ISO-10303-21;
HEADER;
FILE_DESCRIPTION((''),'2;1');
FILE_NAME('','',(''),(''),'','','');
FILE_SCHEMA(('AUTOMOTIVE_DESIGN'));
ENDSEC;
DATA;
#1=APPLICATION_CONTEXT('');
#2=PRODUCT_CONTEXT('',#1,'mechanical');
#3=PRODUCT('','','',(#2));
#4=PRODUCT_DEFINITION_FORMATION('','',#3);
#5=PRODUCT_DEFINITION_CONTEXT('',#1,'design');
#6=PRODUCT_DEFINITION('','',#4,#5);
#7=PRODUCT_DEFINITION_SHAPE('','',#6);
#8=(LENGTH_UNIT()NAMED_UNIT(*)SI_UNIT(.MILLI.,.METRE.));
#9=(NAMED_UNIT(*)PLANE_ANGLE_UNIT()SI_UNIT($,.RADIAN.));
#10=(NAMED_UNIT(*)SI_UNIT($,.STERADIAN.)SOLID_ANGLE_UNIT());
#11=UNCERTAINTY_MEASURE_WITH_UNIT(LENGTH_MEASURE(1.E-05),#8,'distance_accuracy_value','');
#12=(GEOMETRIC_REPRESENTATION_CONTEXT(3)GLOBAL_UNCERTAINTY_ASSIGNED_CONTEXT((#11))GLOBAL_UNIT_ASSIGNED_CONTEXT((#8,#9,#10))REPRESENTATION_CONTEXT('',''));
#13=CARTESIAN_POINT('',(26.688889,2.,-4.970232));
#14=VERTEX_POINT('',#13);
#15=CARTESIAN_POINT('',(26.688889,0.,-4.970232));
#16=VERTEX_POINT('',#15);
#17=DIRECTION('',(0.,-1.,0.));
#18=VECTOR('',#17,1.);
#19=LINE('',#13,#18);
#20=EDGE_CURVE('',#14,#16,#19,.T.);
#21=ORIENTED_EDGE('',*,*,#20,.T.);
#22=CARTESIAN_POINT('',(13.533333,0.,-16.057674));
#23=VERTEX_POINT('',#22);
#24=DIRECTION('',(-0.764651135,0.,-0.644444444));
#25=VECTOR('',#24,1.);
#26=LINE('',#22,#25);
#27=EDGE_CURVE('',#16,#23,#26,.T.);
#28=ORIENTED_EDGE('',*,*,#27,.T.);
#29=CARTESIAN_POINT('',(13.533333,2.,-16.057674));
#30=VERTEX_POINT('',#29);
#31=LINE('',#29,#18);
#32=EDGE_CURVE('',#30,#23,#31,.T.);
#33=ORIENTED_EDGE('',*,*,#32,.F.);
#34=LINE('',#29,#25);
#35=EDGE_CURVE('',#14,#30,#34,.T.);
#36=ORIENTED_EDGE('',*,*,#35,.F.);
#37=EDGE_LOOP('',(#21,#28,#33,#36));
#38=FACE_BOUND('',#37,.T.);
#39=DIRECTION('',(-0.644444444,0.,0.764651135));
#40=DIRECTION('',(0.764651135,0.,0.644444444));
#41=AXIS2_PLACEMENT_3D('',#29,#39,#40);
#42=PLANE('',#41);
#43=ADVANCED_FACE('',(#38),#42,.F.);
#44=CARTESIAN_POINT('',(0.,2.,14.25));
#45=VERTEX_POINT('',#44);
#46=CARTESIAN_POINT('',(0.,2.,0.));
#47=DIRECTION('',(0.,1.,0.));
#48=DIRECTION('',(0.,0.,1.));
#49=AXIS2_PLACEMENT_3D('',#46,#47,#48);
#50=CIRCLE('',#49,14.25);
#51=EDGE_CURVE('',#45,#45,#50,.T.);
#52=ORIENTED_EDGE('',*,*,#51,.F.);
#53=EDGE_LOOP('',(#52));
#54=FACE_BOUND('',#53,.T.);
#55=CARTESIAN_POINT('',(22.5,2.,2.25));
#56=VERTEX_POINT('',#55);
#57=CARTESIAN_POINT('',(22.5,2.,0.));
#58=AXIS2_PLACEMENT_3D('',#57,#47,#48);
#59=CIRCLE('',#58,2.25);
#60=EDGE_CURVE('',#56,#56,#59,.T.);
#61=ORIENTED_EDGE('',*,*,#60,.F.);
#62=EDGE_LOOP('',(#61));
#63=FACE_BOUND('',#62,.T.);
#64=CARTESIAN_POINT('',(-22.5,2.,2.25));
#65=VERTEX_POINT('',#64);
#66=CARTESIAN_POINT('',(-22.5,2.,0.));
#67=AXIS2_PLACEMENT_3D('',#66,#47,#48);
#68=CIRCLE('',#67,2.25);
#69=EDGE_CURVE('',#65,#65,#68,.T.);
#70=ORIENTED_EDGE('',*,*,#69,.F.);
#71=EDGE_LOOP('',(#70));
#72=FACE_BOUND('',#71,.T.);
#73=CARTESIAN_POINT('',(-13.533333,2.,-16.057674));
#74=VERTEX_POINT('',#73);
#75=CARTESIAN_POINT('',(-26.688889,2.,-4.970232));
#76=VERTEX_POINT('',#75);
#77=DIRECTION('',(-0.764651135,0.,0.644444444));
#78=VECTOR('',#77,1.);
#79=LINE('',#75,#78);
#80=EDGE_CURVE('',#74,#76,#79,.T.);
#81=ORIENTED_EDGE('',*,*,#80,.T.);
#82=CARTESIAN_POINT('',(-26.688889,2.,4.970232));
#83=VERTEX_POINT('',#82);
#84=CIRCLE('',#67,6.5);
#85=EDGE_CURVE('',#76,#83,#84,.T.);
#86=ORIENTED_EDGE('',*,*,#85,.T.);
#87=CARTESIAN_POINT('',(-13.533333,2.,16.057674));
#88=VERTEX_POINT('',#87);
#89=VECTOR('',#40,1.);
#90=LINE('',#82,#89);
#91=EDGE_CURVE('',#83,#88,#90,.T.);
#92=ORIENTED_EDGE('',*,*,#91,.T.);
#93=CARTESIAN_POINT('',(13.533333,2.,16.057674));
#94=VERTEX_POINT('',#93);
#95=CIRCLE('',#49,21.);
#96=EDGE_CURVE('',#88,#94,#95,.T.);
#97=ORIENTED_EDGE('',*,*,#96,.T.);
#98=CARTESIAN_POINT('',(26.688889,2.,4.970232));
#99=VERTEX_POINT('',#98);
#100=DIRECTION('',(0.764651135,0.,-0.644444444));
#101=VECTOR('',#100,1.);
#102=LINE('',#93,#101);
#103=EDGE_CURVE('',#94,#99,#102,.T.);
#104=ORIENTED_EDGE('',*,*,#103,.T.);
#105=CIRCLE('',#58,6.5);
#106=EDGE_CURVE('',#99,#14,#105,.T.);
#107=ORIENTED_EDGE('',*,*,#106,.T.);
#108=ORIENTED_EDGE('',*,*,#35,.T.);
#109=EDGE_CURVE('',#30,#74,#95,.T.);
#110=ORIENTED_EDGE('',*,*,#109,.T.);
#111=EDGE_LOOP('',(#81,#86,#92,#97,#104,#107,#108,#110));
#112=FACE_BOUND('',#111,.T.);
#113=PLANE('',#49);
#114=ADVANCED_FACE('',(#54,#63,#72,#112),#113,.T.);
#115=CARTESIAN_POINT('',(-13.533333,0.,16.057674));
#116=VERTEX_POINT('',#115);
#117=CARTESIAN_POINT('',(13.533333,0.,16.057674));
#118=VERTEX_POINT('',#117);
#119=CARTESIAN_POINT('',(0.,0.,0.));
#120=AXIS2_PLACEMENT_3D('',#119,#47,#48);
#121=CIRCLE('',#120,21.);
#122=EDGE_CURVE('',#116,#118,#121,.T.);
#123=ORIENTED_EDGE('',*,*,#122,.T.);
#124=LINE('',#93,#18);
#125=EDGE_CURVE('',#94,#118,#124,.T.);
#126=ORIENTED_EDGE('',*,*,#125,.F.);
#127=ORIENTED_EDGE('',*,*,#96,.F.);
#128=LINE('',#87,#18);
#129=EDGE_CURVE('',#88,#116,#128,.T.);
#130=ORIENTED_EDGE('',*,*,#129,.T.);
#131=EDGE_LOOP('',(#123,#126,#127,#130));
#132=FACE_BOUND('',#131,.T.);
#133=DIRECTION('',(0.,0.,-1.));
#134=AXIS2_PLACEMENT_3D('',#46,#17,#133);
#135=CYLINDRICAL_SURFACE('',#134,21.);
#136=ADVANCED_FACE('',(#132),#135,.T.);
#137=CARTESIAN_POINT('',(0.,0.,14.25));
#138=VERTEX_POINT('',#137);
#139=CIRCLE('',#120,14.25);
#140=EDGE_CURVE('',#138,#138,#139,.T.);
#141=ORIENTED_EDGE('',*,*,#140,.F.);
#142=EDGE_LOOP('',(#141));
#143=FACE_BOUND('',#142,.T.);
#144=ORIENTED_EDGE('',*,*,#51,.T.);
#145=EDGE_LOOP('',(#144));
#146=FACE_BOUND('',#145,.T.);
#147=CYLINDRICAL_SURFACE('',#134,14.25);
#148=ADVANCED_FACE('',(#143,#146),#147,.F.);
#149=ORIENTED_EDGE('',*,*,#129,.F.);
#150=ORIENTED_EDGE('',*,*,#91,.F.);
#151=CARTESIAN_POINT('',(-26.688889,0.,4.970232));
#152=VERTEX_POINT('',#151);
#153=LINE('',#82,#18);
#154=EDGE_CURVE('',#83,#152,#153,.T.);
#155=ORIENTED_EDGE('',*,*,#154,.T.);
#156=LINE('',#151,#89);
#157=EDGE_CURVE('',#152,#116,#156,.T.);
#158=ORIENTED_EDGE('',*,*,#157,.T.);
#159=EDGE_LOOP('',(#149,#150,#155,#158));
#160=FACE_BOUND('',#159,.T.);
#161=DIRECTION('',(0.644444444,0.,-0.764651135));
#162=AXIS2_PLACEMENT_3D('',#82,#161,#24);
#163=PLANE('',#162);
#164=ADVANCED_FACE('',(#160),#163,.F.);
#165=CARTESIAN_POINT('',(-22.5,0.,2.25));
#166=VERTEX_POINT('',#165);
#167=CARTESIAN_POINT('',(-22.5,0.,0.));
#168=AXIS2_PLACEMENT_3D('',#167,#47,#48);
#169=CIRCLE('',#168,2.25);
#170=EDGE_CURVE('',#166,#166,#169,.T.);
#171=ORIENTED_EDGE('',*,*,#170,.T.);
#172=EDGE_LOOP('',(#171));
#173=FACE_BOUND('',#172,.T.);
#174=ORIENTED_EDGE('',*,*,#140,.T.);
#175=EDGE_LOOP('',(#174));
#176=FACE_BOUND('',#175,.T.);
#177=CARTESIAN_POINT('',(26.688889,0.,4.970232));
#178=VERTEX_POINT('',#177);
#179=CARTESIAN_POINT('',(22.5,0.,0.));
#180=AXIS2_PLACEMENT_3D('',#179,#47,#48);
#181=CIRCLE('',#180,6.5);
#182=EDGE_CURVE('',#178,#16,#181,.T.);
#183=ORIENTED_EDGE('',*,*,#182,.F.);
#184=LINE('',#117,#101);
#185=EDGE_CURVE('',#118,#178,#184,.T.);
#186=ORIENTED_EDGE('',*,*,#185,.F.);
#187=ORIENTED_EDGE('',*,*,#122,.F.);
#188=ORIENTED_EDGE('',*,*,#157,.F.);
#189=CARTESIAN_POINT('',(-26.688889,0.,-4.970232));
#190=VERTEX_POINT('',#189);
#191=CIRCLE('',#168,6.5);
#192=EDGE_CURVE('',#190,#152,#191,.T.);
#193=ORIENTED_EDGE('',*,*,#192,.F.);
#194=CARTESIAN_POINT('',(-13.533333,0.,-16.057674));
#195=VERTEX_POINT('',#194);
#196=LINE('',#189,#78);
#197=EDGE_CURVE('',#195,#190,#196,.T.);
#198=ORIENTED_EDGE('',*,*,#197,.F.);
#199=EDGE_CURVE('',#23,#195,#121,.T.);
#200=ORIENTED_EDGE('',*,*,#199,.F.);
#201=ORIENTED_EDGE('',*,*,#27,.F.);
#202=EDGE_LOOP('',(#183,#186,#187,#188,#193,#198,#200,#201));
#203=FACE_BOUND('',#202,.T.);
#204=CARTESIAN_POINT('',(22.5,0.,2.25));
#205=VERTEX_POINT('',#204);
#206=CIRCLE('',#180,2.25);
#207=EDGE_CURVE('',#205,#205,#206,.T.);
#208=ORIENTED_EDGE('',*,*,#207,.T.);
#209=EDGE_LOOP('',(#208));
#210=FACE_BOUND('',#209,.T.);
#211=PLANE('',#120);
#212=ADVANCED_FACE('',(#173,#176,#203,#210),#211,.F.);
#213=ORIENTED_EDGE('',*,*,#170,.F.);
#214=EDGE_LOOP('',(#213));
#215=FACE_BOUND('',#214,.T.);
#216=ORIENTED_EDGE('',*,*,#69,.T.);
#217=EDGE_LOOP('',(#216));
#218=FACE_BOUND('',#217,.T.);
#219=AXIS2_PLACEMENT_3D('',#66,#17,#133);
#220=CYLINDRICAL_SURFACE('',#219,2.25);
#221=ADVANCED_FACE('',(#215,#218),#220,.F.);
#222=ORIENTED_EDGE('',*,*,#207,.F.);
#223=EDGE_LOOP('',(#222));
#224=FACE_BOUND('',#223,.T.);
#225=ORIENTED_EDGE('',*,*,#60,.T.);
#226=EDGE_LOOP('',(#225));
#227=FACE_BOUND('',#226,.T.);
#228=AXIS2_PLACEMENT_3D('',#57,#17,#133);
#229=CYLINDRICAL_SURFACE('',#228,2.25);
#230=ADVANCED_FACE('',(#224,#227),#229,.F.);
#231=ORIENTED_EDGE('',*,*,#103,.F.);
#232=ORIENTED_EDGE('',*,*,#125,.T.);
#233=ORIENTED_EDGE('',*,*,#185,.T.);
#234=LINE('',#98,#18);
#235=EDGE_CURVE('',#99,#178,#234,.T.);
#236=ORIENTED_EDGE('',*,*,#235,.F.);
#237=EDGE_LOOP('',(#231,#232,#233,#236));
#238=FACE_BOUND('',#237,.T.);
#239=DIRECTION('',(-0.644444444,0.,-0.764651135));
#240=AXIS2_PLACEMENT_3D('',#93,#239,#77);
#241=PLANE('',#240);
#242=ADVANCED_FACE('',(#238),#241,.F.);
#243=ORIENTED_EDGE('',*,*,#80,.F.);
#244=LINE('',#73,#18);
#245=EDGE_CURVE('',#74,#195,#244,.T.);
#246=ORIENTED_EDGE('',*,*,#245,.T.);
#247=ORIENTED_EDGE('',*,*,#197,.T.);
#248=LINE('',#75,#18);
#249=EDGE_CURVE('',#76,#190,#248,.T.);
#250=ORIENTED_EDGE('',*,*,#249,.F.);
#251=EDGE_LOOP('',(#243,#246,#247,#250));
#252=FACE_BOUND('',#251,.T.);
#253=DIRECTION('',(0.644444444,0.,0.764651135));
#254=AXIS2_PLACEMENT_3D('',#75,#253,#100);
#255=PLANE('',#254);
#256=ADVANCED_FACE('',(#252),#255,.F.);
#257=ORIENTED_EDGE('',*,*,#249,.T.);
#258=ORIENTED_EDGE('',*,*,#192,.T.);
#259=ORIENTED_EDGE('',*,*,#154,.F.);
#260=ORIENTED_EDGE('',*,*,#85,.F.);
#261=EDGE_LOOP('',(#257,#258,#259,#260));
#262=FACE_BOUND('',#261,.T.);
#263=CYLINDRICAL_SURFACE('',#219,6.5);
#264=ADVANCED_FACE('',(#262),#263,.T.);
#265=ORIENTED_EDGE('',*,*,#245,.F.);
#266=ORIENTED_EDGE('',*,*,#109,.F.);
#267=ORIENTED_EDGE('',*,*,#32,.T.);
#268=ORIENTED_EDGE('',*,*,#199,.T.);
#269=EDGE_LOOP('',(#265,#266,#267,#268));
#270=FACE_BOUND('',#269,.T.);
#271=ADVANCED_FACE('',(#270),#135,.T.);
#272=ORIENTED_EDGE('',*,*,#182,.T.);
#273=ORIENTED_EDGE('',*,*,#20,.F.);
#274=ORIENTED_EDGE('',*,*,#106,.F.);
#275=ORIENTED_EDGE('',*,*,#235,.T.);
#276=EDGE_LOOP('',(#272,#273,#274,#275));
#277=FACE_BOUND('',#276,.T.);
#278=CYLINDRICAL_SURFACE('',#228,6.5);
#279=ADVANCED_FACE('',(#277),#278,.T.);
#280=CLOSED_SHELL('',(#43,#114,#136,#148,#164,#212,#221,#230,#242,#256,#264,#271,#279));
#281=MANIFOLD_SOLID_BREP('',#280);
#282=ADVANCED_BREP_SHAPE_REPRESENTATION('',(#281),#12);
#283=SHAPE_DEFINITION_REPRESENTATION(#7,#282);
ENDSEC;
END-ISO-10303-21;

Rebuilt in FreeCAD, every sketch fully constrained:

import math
import FreeCAD as App
import Part
import Sketcher
Q = App.Units.Quantity

doc = App.newDocument("Part")
body = doc.addObject("PartDesign::Body", "Body")

# Sketch on XZ plane
sketch1 = doc.addObject("Sketcher::SketchObject", "Sketch")
body.addObject(sketch1)
sketch1.AttachmentSupport = (doc.XZ_Plane, [""])
sketch1.MapMode = "FlatFace"
sketch1.addGeometry([
    Part.LineSegment(App.Vector(26.7, -5, 0), App.Vector(13.5, -16.1, 0)),  # 0
    Part.ArcOfCircle(Part.Circle(App.Vector(0, 0, 0), App.Vector(0, 0, 1), 21), math.radians(-130), math.radians(-50)),  # 1
    Part.LineSegment(App.Vector(-13.5, -16.1, 0), App.Vector(-26.7, -5, 0)),  # 2
    Part.ArcOfCircle(Part.Circle(App.Vector(-22.5, 0, 0), App.Vector(0, 0, 1), 6.5), math.radians(130), math.radians(230)),  # 3
    Part.LineSegment(App.Vector(-26.7, 5, 0), App.Vector(-13.5, 16.1, 0)),  # 4
    Part.ArcOfCircle(Part.Circle(App.Vector(0, 0, 0), App.Vector(0, 0, 1), 21), math.radians(50), math.radians(130)),  # 5
    Part.LineSegment(App.Vector(13.5, 16.1, 0), App.Vector(26.7, 5, 0)),  # 6
    Part.ArcOfCircle(Part.Circle(App.Vector(22.5, 0, 0), App.Vector(0, 0, 1), 6.5), math.radians(-50), math.radians(50)),  # 7
    Part.Circle(App.Vector(22.5, 0, 0), App.Vector(0, 0, 1), 2.2),  # 8
    Part.Circle(App.Vector(0, 0, 0), App.Vector(0, 0, 1), 14.2),  # 9
    Part.Circle(App.Vector(-22.5, 0, 0), App.Vector(0, 0, 1), 2.2),  # 10
], False)
sketch1.addConstraint([
    Sketcher.Constraint("Tangent", 0, 2, 1, 2),
    Sketcher.Constraint("Tangent", 1, 1, 2, 1),
    Sketcher.Constraint("Tangent", 2, 2, 3, 2),
    Sketcher.Constraint("Tangent", 3, 1, 4, 1),
    Sketcher.Constraint("Tangent", 4, 2, 5, 2),
    Sketcher.Constraint("Tangent", 5, 1, 6, 1),
    Sketcher.Constraint("Tangent", 6, 2, 7, 2),
    Sketcher.Constraint("Tangent", 7, 1, 0, 1),
    Sketcher.Constraint("Coincident", 1, 3, -1, 1),
    Sketcher.Constraint("Coincident", 5, 3, -1, 1),
    Sketcher.Constraint("Coincident", 9, 3, -1, 1),
    Sketcher.Constraint("Coincident", 8, 3, 7, 3),
    Sketcher.Constraint("Coincident", 10, 3, 3, 3),
    Sketcher.Constraint("Equal", 1, 5),
    Sketcher.Constraint("Equal", 3, 7),
    Sketcher.Constraint("Equal", 8, 10),
    Sketcher.Constraint("Symmetric", 3, 3, 7, 3, -1, 1),
    Sketcher.Constraint("PointOnObject", 3, 3, -1),
    Sketcher.Constraint("Radius", 1, Q("21 mm")),
    Sketcher.Constraint("Diameter", 8, Q("4.5 mm")),
    Sketcher.Constraint("Diameter", 9, Q("28.5 mm")),
    Sketcher.Constraint("Radius", 3, Q("6.5 mm")),
    Sketcher.Constraint("DistanceX", 3, 3, 7, 3, Q("45 mm")),
])
pad1 = doc.addObject("PartDesign::Pad", "Pad")
body.addObject(pad1)
pad1.Profile = sketch1
pad1.Length = 2
pad1.Reversed = True

doc.recompute()
